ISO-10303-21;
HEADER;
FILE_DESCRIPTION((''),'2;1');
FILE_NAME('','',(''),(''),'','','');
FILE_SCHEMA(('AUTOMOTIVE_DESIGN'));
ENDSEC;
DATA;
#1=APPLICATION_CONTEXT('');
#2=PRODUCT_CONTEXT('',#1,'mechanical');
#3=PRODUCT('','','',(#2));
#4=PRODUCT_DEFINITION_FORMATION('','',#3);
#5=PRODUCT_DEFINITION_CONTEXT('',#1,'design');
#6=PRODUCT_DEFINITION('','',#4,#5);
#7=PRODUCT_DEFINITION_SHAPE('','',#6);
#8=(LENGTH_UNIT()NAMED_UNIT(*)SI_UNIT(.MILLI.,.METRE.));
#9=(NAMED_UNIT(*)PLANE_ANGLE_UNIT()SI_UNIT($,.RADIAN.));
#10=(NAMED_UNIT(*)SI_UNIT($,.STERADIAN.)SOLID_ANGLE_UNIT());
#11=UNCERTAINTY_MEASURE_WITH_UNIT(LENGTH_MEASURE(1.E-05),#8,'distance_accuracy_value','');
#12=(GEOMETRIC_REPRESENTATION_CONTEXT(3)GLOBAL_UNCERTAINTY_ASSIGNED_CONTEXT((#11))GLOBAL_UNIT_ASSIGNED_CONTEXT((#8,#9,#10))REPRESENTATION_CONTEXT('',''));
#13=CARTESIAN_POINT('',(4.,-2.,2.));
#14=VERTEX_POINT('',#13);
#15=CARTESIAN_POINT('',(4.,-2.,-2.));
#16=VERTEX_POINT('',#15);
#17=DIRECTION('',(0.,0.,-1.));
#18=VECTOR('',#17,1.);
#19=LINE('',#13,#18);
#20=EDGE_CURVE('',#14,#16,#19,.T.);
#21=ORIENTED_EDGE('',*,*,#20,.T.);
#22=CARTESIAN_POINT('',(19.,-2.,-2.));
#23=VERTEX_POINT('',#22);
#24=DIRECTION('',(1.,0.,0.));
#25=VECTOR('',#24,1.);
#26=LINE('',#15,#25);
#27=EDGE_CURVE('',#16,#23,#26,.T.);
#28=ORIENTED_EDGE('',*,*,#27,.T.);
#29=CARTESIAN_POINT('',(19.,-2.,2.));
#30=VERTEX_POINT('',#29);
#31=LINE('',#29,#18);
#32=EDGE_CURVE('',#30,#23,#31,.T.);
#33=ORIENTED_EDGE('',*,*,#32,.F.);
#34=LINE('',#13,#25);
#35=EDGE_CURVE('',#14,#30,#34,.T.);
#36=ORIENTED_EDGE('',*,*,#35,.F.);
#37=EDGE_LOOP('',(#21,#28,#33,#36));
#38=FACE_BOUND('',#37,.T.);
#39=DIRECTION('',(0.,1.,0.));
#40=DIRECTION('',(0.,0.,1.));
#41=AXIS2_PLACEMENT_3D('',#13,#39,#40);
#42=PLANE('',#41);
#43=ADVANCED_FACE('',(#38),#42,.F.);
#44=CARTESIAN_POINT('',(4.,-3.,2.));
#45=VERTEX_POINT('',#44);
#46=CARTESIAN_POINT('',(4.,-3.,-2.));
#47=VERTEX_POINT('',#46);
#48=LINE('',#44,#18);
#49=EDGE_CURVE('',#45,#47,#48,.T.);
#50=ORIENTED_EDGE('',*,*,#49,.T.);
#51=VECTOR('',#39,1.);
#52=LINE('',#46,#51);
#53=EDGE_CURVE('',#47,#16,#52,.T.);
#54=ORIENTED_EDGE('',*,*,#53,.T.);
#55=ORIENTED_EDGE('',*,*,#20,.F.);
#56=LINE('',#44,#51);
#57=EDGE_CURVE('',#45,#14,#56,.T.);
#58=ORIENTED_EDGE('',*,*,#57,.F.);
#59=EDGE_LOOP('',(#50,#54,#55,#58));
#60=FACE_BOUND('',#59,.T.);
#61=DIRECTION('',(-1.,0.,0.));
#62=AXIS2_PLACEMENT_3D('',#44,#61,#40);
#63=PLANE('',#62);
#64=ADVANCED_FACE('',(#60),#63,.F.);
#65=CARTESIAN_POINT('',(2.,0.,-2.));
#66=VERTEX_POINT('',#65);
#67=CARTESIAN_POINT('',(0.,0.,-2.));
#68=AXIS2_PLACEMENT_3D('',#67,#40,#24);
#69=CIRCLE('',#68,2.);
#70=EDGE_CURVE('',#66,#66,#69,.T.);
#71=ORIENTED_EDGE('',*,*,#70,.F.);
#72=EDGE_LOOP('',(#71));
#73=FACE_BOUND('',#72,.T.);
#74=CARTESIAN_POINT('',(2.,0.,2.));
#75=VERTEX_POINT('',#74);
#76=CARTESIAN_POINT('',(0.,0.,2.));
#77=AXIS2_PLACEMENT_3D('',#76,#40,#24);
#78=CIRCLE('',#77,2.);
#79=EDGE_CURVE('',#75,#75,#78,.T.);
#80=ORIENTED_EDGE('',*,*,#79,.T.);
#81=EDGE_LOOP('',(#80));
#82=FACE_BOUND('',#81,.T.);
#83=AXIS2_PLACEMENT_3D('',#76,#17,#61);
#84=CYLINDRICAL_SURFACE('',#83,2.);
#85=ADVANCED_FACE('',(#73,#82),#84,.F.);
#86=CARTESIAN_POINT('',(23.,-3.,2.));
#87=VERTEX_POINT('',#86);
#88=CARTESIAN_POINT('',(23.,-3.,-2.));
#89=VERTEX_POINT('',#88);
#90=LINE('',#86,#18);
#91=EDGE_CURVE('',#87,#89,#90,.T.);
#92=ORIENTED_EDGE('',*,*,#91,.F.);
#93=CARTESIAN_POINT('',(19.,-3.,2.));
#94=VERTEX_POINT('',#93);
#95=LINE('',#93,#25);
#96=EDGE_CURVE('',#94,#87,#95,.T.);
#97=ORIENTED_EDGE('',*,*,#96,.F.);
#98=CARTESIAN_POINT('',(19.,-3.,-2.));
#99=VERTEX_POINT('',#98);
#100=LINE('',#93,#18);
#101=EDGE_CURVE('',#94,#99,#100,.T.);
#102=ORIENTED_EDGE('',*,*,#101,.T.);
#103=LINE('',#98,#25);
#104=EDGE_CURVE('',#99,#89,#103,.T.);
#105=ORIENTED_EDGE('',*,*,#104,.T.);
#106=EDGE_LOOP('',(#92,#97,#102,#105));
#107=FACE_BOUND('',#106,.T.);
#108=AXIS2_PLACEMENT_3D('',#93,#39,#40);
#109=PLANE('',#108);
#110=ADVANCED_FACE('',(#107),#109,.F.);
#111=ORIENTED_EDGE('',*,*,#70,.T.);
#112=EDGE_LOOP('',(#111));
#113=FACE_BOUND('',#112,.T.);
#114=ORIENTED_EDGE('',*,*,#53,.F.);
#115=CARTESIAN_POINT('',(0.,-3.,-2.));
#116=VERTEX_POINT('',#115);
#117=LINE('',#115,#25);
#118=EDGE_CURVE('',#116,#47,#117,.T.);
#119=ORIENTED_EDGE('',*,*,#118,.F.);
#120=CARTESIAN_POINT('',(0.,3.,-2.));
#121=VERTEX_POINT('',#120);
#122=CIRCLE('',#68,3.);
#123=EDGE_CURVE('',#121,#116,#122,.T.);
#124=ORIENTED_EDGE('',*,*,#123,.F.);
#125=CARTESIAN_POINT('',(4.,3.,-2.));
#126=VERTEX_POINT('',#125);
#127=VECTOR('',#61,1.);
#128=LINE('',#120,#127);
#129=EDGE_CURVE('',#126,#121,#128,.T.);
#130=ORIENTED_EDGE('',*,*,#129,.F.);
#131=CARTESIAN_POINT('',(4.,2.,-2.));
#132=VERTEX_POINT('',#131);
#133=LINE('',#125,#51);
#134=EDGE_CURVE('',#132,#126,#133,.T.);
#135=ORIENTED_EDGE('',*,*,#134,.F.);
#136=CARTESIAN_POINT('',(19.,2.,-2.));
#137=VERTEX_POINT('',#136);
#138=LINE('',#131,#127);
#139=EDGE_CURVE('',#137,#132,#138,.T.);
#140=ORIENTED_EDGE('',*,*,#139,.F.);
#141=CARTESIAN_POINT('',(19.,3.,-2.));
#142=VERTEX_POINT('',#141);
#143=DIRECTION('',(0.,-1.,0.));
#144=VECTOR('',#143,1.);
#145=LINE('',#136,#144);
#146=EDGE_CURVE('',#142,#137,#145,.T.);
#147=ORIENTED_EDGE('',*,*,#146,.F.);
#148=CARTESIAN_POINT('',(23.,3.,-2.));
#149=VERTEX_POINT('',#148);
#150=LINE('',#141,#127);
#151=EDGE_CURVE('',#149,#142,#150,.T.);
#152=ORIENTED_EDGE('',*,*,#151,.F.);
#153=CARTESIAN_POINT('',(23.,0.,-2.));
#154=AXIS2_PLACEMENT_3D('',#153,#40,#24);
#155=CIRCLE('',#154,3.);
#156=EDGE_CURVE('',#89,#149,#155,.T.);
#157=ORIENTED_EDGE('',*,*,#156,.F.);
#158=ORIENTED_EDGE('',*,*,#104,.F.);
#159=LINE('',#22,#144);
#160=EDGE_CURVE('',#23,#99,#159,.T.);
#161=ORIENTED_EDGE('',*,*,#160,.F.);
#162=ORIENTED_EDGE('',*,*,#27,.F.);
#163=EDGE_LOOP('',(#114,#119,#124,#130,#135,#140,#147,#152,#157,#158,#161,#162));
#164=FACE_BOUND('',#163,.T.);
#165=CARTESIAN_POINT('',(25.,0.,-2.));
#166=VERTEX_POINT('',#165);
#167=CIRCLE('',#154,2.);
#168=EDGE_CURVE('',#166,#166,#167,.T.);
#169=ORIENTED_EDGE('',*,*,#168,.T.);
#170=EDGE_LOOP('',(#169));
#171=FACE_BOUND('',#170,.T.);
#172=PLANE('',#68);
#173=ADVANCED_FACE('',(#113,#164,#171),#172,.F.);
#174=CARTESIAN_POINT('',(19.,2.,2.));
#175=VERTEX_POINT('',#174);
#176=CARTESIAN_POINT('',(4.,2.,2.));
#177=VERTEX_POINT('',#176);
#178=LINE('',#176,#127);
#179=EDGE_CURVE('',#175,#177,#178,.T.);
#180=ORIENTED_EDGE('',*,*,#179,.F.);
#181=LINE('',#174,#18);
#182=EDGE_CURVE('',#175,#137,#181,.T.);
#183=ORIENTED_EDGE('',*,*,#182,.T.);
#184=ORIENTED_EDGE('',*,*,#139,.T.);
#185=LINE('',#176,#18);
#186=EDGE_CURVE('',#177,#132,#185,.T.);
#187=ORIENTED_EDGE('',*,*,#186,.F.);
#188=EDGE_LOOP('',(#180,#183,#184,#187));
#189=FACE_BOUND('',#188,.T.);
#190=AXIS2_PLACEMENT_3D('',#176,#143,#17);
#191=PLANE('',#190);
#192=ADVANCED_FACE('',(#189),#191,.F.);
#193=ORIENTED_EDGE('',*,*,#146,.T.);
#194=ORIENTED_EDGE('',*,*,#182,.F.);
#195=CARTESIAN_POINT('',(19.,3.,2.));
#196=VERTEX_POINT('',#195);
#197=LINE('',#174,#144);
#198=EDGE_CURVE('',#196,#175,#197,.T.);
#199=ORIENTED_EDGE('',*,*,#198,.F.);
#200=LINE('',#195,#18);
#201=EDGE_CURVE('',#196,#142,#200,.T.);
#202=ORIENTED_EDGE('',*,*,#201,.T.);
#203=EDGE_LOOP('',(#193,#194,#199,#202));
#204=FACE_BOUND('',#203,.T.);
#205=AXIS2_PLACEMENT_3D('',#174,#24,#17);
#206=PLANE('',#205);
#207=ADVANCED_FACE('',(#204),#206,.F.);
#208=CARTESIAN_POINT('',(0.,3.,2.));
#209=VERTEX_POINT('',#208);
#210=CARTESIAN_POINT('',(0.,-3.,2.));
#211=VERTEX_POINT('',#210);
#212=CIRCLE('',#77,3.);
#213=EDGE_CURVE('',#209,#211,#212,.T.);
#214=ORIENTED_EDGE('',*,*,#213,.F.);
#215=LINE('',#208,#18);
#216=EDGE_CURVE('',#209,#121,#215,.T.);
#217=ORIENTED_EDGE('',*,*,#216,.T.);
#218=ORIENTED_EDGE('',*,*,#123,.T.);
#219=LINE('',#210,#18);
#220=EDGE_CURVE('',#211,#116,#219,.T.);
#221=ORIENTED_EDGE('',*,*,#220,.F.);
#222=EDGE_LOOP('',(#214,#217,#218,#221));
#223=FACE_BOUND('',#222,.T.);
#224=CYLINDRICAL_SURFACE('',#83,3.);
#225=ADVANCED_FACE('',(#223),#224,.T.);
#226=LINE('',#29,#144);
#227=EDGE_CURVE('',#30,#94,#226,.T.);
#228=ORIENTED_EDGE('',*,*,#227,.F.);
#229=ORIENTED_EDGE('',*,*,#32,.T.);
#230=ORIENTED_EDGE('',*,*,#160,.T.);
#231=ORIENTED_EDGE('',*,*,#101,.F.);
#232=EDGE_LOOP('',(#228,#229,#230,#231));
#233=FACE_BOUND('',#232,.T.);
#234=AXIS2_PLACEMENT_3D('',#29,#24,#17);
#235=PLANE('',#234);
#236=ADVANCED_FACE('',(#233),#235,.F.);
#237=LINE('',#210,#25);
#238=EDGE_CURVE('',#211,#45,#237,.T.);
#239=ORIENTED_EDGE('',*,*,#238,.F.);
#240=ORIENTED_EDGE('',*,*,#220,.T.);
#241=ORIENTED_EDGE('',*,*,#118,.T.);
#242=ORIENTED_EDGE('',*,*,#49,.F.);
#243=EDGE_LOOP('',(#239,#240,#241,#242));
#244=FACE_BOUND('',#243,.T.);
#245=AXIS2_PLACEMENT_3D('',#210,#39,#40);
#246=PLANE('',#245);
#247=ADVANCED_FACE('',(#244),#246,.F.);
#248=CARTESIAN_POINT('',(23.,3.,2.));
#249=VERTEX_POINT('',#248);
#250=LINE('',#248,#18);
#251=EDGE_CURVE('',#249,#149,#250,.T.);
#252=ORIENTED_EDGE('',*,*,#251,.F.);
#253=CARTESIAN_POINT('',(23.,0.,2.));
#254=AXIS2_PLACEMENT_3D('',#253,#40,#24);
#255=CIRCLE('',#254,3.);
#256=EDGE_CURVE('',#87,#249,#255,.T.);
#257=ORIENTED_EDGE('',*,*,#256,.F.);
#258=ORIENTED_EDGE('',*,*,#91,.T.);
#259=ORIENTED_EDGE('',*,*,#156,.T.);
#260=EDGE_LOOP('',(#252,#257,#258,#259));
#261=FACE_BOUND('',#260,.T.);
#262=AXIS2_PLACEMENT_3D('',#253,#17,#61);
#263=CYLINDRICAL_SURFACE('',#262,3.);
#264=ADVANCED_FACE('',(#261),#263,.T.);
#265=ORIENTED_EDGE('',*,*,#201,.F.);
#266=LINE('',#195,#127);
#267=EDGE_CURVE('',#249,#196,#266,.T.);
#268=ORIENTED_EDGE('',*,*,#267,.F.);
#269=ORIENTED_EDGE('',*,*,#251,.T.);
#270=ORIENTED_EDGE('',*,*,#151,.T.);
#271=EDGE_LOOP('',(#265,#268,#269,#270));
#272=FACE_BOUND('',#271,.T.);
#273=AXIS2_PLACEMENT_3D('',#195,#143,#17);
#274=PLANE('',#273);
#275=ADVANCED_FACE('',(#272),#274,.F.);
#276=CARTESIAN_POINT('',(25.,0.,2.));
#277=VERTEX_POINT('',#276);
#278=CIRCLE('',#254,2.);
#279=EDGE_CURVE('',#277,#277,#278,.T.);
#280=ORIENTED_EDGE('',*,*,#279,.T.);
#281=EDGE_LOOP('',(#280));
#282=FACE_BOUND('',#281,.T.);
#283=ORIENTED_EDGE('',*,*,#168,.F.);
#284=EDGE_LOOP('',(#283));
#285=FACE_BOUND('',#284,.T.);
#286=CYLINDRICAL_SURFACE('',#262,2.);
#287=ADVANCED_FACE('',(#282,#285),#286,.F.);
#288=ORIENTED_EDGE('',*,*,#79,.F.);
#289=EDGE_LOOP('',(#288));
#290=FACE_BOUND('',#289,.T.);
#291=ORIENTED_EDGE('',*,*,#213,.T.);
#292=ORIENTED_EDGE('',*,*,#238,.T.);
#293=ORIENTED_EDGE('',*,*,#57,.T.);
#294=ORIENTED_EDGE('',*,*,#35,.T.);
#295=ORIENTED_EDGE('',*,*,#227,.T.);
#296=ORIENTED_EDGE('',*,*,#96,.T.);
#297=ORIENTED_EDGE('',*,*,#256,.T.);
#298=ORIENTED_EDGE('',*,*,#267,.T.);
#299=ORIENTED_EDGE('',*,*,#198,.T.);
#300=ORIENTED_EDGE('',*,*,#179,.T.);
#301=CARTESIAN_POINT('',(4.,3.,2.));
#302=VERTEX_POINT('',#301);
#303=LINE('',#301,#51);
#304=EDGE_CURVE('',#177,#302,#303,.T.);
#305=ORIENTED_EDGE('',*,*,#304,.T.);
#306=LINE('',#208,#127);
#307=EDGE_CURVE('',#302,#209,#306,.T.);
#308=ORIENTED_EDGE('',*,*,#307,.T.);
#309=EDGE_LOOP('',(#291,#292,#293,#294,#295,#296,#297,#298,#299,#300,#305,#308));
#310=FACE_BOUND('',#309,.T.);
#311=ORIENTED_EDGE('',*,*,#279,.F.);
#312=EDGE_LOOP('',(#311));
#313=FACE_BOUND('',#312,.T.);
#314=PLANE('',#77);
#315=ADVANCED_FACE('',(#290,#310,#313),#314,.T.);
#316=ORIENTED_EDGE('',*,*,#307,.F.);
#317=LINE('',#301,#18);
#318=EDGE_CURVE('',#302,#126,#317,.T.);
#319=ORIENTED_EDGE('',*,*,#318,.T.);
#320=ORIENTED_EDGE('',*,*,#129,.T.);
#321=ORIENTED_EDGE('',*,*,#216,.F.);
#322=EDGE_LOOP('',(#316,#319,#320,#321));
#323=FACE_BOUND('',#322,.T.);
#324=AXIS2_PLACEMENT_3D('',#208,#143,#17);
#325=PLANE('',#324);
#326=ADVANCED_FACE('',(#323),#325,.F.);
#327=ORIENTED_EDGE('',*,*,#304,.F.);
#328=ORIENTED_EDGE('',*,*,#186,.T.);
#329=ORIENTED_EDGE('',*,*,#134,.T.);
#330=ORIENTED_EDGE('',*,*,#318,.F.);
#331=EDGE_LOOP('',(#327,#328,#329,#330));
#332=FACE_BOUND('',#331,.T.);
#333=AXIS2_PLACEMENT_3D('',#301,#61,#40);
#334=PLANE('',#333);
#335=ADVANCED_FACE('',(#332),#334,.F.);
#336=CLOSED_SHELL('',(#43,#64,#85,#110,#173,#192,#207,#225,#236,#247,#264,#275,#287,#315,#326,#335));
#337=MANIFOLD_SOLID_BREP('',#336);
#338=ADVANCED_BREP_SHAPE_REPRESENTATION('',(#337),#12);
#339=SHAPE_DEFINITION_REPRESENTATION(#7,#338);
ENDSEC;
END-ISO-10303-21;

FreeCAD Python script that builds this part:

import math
import FreeCAD as App
import Part
import Sketcher

V = App.Vector
Q = App.Units.Quantity

doc = App.newDocument("Part")
body = doc.addObject("PartDesign::Body", "Body")

# Sketch on XY plane
sketch1 = body.newObject("Sketcher::SketchObject", "Sketch")
sketch1.AttachmentSupport = (doc.getObject("XY_Plane"), [""])
sketch1.MapMode = "FlatFace"
sketch1.addGeometry(Part.LineSegment(V(4, 3, 0), V(0, 3, 0)), False)
sketch1.addGeometry(Part.ArcOfCircle(Part.Circle(V(0, 0, 0), V(0, 0, 1), 3), math.radians(90), math.radians(270)), False)
sketch1.addGeometry(Part.LineSegment(V(0, -3, 0), V(4, -3, 0)), False)
sketch1.addGeometry(Part.LineSegment(V(4, -3, 0), V(4, -2, 0)), False)
sketch1.addGeometry(Part.LineSegment(V(4, -2, 0), V(19, -2, 0)), False)
sketch1.addGeometry(Part.LineSegment(V(19, -2, 0), V(19, -3, 0)), False)
sketch1.addGeometry(Part.LineSegment(V(19, -3, 0), V(23, -3, 0)), False)
sketch1.addGeometry(Part.ArcOfCircle(Part.Circle(V(23, 0, 0), V(0, 0, 1), 3), math.radians(-90), math.radians(90)), False)
sketch1.addGeometry(Part.LineSegment(V(23, 3, 0), V(19, 3, 0)), False)
sketch1.addGeometry(Part.LineSegment(V(19, 3, 0), V(19, 2, 0)), False)
sketch1.addGeometry(Part.LineSegment(V(19, 2, 0), V(4, 2, 0)), False)
sketch1.addGeometry(Part.LineSegment(V(4, 2, 0), V(4, 3, 0)), False)
sketch1.addGeometry(Part.Circle(V(23, 0, 0), V(0, 0, 1), 2), False)
sketch1.addGeometry(Part.Circle(V(0, 0, 0), V(0, 0, 1), 2), False)
sketch1.addConstraint(Sketcher.Constraint("Tangent", 0, 2, 1, 1))
sketch1.addConstraint(Sketcher.Constraint("Tangent", 1, 2, 2, 1))
sketch1.addConstraint(Sketcher.Constraint("Coincident", 2, 2, 3, 1))
sketch1.addConstraint(Sketcher.Constraint("Coincident", 3, 2, 4, 1))
sketch1.addConstraint(Sketcher.Constraint("Coincident", 4, 2, 5, 1))
sketch1.addConstraint(Sketcher.Constraint("Coincident", 5, 2, 6, 1))
sketch1.addConstraint(Sketcher.Constraint("Tangent", 6, 2, 7, 1))
sketch1.addConstraint(Sketcher.Constraint("Tangent", 7, 2, 8, 1))
sketch1.addConstraint(Sketcher.Constraint("Coincident", 8, 2, 9, 1))
sketch1.addConstraint(Sketcher.Constraint("Coincident", 9, 2, 10, 1))
sketch1.addConstraint(Sketcher.Constraint("Coincident", 10, 2, 11, 1))
sketch1.addConstraint(Sketcher.Constraint("Coincident", 11, 2, 0, 1))
sketch1.addConstraint(Sketcher.Constraint("Horizontal", 0))
sketch1.addConstraint(Sketcher.Constraint("Horizontal", 2))
sketch1.addConstraint(Sketcher.Constraint("Vertical", 3))
sketch1.addConstraint(Sketcher.Constraint("Horizontal", 4))
sketch1.addConstraint(Sketcher.Constraint("Vertical", 5))
sketch1.addConstraint(Sketcher.Constraint("Horizontal", 6))
sketch1.addConstraint(Sketcher.Constraint("Horizontal", 8))
sketch1.addConstraint(Sketcher.Constraint("Vertical", 9))
sketch1.addConstraint(Sketcher.Constraint("Horizontal", 10))
sketch1.addConstraint(Sketcher.Constraint("Vertical", 11))
sketch1.addConstraint(Sketcher.Constraint("Coincident", 1, 3, -1, 1))
sketch1.addConstraint(Sketcher.Constraint("Coincident", 13, 3, -1, 1))
sketch1.addConstraint(Sketcher.Constraint("Coincident", 12, 3, 7, 3))
sketch1.addConstraint(Sketcher.Constraint("Equal", 1, 7))
sketch1.addConstraint(Sketcher.Constraint("Equal", 12, 13))
sketch1.addConstraint(Sketcher.Constraint("Symmetric", 5, 2, 8, 2, -1))
sketch1.addConstraint(Sketcher.Constraint("Symmetric", 3, 2, 10, 2, -1))
sketch1.addConstraint(Sketcher.Constraint("Equal", 2, 6))
sketch1.addConstraint(Sketcher.Constraint("Diameter", 12, Q("4 mm")))
sketch1.addConstraint(Sketcher.Constraint("Radius", 1, Q("3 mm")))
sketch1.addConstraint(Sketcher.Constraint("DistanceX", 0, 2, 0, 1, Q("4 mm")))
sketch1.addConstraint(Sketcher.Constraint("DistanceX", 4, 1, 4, 2, Q("15 mm")))
sketch1.addConstraint(Sketcher.Constraint("DistanceY", 3, 1, 3, 2, Q("1 mm")))
pad1 = body.newObject("PartDesign::Pad", "Pad")
pad1.Profile = sketch1
pad1.Length = 4
pad1.Midplane = True

doc.recompute()
